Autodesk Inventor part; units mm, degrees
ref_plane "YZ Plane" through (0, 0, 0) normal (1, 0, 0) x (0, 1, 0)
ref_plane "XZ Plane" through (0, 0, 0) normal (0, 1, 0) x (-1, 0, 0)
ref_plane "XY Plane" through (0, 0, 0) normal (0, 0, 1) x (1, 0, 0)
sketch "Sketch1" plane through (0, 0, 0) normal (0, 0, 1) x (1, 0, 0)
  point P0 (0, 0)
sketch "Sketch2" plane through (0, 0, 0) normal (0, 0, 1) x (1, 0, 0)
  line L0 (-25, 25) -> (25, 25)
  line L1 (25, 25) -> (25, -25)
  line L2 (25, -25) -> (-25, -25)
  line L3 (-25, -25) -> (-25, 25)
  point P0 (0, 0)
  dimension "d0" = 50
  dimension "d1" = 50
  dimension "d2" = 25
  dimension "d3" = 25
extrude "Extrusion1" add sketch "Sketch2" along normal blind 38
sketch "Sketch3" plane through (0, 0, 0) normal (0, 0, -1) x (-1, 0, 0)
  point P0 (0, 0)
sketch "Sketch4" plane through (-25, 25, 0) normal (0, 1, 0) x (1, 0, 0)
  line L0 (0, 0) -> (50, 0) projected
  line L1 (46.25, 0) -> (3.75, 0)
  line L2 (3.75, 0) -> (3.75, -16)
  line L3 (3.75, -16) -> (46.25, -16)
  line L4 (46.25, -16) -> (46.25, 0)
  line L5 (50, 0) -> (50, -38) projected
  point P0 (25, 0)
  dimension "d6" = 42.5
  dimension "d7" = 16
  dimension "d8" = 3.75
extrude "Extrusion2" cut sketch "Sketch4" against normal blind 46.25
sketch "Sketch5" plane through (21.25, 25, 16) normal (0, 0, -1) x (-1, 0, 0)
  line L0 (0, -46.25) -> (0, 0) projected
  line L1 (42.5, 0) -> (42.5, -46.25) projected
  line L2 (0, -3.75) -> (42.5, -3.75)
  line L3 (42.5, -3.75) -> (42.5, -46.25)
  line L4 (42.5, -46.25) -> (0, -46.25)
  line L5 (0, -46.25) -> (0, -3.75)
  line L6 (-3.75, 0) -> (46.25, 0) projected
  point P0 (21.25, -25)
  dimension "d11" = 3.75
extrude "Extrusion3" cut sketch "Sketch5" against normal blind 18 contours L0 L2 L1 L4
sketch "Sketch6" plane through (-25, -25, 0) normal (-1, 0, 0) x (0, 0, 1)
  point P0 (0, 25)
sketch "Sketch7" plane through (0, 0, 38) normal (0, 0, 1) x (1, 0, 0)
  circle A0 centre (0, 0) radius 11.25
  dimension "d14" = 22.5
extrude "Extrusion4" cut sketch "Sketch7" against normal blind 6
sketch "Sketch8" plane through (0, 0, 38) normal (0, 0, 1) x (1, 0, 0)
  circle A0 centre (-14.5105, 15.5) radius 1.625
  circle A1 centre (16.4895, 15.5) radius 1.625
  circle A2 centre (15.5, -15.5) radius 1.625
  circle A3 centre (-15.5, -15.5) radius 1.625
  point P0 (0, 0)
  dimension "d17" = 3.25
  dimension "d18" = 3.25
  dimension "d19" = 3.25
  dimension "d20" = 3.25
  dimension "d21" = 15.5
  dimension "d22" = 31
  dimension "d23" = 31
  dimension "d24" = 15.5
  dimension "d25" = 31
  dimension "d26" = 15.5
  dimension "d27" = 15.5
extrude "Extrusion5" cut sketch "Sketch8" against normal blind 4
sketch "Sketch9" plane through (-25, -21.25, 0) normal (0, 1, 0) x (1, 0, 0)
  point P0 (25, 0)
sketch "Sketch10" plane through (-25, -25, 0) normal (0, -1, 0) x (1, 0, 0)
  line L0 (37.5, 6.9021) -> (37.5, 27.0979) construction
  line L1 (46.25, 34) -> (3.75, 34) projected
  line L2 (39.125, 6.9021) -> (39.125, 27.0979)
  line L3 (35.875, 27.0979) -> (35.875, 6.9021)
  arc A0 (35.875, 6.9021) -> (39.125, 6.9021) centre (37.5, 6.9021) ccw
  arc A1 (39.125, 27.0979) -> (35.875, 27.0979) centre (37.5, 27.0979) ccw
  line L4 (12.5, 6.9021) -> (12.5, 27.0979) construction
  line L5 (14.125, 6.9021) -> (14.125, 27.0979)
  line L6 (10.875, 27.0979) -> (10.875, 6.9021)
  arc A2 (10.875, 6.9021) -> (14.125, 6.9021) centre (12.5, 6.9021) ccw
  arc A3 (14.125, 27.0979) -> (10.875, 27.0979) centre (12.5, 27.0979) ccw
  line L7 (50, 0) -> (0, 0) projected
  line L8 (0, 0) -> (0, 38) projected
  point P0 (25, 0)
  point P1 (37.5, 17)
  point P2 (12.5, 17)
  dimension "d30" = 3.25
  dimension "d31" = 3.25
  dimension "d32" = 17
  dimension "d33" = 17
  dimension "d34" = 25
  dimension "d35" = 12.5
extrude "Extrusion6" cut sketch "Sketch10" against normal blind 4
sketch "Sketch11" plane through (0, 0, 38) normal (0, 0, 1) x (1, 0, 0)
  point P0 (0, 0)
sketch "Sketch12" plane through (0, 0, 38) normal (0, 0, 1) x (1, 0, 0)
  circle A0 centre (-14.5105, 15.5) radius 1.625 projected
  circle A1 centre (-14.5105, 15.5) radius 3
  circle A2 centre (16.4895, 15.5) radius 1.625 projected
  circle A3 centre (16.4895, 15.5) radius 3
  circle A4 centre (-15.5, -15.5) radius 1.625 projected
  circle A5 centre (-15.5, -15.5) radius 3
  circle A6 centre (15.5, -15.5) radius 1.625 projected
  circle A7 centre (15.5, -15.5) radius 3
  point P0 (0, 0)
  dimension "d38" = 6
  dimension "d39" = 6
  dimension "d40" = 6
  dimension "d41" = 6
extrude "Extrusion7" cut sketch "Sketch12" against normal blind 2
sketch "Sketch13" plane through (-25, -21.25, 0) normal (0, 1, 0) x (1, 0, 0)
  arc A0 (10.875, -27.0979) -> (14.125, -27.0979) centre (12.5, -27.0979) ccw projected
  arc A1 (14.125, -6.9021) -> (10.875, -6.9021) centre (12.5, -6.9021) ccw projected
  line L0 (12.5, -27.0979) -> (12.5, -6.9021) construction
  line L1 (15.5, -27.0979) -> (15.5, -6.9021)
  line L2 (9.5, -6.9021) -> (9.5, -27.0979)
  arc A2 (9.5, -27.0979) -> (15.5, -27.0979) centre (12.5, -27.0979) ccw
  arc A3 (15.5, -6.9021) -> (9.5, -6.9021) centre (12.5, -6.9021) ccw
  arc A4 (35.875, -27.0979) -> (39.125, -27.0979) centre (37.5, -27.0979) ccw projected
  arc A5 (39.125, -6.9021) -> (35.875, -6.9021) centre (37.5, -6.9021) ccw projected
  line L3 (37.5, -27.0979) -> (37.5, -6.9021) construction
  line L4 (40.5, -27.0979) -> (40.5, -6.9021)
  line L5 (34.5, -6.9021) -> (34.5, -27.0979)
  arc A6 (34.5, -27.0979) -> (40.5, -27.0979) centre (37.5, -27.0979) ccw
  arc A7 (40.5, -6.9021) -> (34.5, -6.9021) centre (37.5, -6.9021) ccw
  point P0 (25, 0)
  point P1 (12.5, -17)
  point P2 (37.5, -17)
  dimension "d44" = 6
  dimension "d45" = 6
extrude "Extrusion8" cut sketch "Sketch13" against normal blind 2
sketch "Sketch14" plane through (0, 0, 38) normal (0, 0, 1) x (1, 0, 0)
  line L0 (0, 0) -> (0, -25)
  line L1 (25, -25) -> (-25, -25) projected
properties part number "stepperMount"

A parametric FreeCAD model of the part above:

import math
import FreeCAD as App
import Part
import Sketcher

doc = App.newDocument("Part")
body = doc.addObject("PartDesign::Body", "Body")

sketch1 = body.newObject("Sketcher::SketchObject", "Sketch")
sketch1.AttachmentSupport = (doc.getObject("XY_Plane"), [""])
sketch1.MapMode = "FlatFace"
sketch1.addGeometry([
    Part.LineSegment(App.Vector(25, 25, 0), App.Vector(-25, 25, 0)),
    Part.LineSegment(App.Vector(-25, 25, 0), App.Vector(-25, -25, 0)),
    Part.LineSegment(App.Vector(-25, -25, 0), App.Vector(25, -25, 0)),
    Part.LineSegment(App.Vector(25, -25, 0), App.Vector(25, 25, 0)),
], False)
sketch1.addConstraint([
    Sketcher.Constraint("Coincident", 0, 2, 1, 1),
    Sketcher.Constraint("Coincident", 1, 2, 2, 1),
    Sketcher.Constraint("Coincident", 2, 2, 3, 1),
    Sketcher.Constraint("Coincident", 3, 2, 0, 1),
    Sketcher.Constraint("Horizontal", 0),
    Sketcher.Constraint("Vertical", 1),
    Sketcher.Constraint("Horizontal", 2),
    Sketcher.Constraint("Vertical", 3),
    Sketcher.Constraint("Symmetric", 0, 2, 2, 2, -1, 1),
    Sketcher.Constraint("Equal", 2, 1),
    Sketcher.Constraint("DistanceX", 0, 2, 0, 1, 50.0),
])
pad1 = body.newObject("PartDesign::Pad", "Pad")
pad1.Profile = sketch1
pad1.Length = 38

sketch2 = body.newObject("Sketcher::SketchObject", "Sketch001")
sketch2.AttachmentSupport = (doc.getObject("XZ_Plane"), [""])
sketch2.MapMode = "FlatFace"
sketch2.AttachmentOffset = App.Placement(App.Vector(0, 0, -25), App.Rotation())
sketch2.addGeometry([
    Part.LineSegment(App.Vector(21, 0, 0), App.Vector(-21, 0, 0)),
    Part.LineSegment(App.Vector(-21, 0, 0), App.Vector(-21, 16, 0)),
    Part.LineSegment(App.Vector(-21, 16, 0), App.Vector(21, 16, 0)),
    Part.LineSegment(App.Vector(21, 16, 0), App.Vector(21, 0, 0)),
], False)
sketch2.addConstraint([
    Sketcher.Constraint("Coincident", 0, 2, 1, 1),
    Sketcher.Constraint("Coincident", 1, 2, 2, 1),
    Sketcher.Constraint("Coincident", 2, 2, 3, 1),
    Sketcher.Constraint("Coincident", 3, 2, 0, 1),
    Sketcher.Constraint("Horizontal", 0),
    Sketcher.Constraint("Vertical", 1),
    Sketcher.Constraint("Horizontal", 2),
    Sketcher.Constraint("Vertical", 3),
    Sketcher.Constraint("Symmetric", 0, 2, 3, 2, -1, 1),
    Sketcher.Constraint("DistanceY", 1, 1, 1, 2, 16.0),
    Sketcher.Constraint("DistanceX", 0, 2, 0, 1, 42.5),
])
pocket1 = body.newObject("PartDesign::Pocket", "Pocket")
pocket1.Profile = sketch2
pocket1.Length = 46.25
pocket1.Reversed = True

sketch3 = body.newObject("Sketcher::SketchObject", "Sketch002")
sketch3.AttachmentSupport = (doc.getObject("XY_Plane"), [""])
sketch3.MapMode = "FlatFace"
sketch3.AttachmentOffset = App.Placement(App.Vector(0, 0, 16), App.Rotation())
sketch3.addGeometry([
    Part.LineSegment(App.Vector(21, 21, 0), App.Vector(21, -21, 0)),
    Part.LineSegment(App.Vector(21, -21, 0), App.Vector(-21, -21, 0)),
    Part.LineSegment(App.Vector(-21, -21, 0), App.Vector(-21, 21, 0)),
    Part.LineSegment(App.Vector(-21, 21, 0), App.Vector(21, 21, 0)),
], False)
sketch3.addConstraint([
    Sketcher.Constraint("Coincident", 0, 2, 1, 1),
    Sketcher.Constraint("Coincident", 1, 2, 2, 1),
    Sketcher.Constraint("Coincident", 2, 2, 3, 1),
    Sketcher.Constraint("Coincident", 3, 2, 0, 1),
    Sketcher.Constraint("Vertical", 0),
    Sketcher.Constraint("Horizontal", 1),
    Sketcher.Constraint("Vertical", 2),
    Sketcher.Constraint("Horizontal", 3),
    Sketcher.Constraint("Symmetric", 0, 2, 2, 2, -1, 1),
    Sketcher.Constraint("Equal", 3, 0),
    Sketcher.Constraint("DistanceX", 1, 2, 1, 1, 42.5),
])
pocket2 = body.newObject("PartDesign::Pocket", "Pocket001")
pocket2.Profile = sketch3
pocket2.Length = 18
pocket2.Reversed = True

sketch4 = body.newObject("Sketcher::SketchObject", "Sketch003")
sketch4.AttachmentSupport = (doc.getObject("XY_Plane"), [""])
sketch4.MapMode = "FlatFace"
sketch4.AttachmentOffset = App.Placement(App.Vector(0, 0, 38), App.Rotation())
sketch4.addGeometry(Part.Circle(App.Vector(0, 0, 0), App.Vector(0, 0, 1), 11), False)
sketch4.addConstraint([
    Sketcher.Constraint("Coincident", 0, 3, -1, 1),
    Sketcher.Constraint("Diameter", 0, 22.5),
])
pocket3 = body.newObject("PartDesign::Pocket", "Pocket002")
pocket3.Profile = sketch4
pocket3.Length = 6

sketch5 = body.newObject("Sketcher::SketchObject", "Sketch004")
sketch5.AttachmentSupport = (doc.getObject("XY_Plane"), [""])
sketch5.MapMode = "FlatFace"
sketch5.AttachmentOffset = App.Placement(App.Vector(0, 0, 38), App.Rotation())
sketch5.addGeometry([
    Part.Circle(App.Vector(-14.5, 15.5, 0), App.Vector(0, 0, 1), 1.6),
    Part.Circle(App.Vector(16.5, 15.5, 0), App.Vector(0, 0, 1), 1.6),
    Part.Circle(App.Vector(15.5, -15.5, 0), App.Vector(0, 0, 1), 1.6),
    Part.Circle(App.Vector(-15.5, -15.5, 0), App.Vector(0, 0, 1), 1.6),
], False)
sketch5.addConstraint([
    Sketcher.Constraint("Equal", 0, 1),
    Sketcher.Constraint("Equal", 1, 2),
    Sketcher.Constraint("Equal", 2, 3),
    Sketcher.Constraint("Symmetric", 2, 3, 3, 3, -2),
    Sketcher.Constraint("Horizontal", 0, 3, 1, 3),
    Sketcher.Constraint("Diameter", 0, 3.25),
    Sketcher.Constraint("DistanceX", 0, 3, 1, 3, 31.0),
    Sketcher.Constraint("DistanceY", 2, 3, 1, 3, 31.0),
    Sketcher.Constraint("DistanceX", 3, 3, 2, 3, 31.0),
    Sketcher.Constraint("DistanceY", -1, 1, 0, 3, 15.5),
    Sketcher.Constraint("DistanceX", 0, 3, -1, 1, 14.5105),
])
pocket4 = body.newObject("PartDesign::Pocket", "Pocket003")
pocket4.Profile = sketch5
pocket4.Length = 4

sketch6 = body.newObject("Sketcher::SketchObject", "Sketch005")
sketch6.AttachmentSupport = (doc.getObject("XZ_Plane"), [""])
sketch6.MapMode = "FlatFace"
sketch6.AttachmentOffset = App.Placement(App.Vector(0, 0, 25), App.Rotation())
sketch6.addGeometry([
    Part.ArcOfCircle(Part.Circle(App.Vector(12.5, 6.9, 0), App.Vector(0, 0, 1), 1.6), math.radians(180), math.radians(360)),
    Part.LineSegment(App.Vector(14.1, 6.9, 0), App.Vector(14.1, 27.1, 0)),
    Part.ArcOfCircle(Part.Circle(App.Vector(12.5, 27.1, 0), App.Vector(0, 0, 1), 1.6), math.radians(0), math.radians(180)),
    Part.LineSegment(App.Vector(10.9, 27.1, 0), App.Vector(10.9, 6.9, 0)),
    Part.ArcOfCircle(Part.Circle(App.Vector(-12.5, 6.9, 0), App.Vector(0, 0, 1), 1.6), math.radians(180), math.radians(360)),
    Part.LineSegment(App.Vector(-10.9, 6.9, 0), App.Vector(-10.9, 27.1, 0)),
    Part.ArcOfCircle(Part.Circle(App.Vector(-12.5, 27.1, 0), App.Vector(0, 0, 1), 1.6), math.radians(0), math.radians(180)),
    Part.LineSegment(App.Vector(-14.1, 27.1, 0), App.Vector(-14.1, 6.9, 0)),
], False)
sketch6.addConstraint([
    Sketcher.Constraint("Tangent", 0, 2, 1, 1),
    Sketcher.Constraint("Tangent", 1, 2, 2, 1),
    Sketcher.Constraint("Tangent", 2, 2, 3, 1),
    Sketcher.Constraint("Tangent", 3, 2, 0, 1),
    Sketcher.Constraint("Tangent", 4, 2, 5, 1),
    Sketcher.Constraint("Tangent", 5, 2, 6, 1),
    Sketcher.Constraint("Tangent", 6, 2, 7, 1),
    Sketcher.Constraint("Tangent", 7, 2, 4, 1),
    Sketcher.Constraint("Vertical", 1),
    Sketcher.Constraint("Vertical", 3),
    Sketcher.Constraint("Vertical", 5),
    Sketcher.Constraint("Vertical", 7),
    Sketcher.Constraint("Equal", 2, 4),
    Sketcher.Constraint("Symmetric", 0, 3, 4, 3, -2),
    Sketcher.Constraint("Horizontal", 2, 3, 6, 3),
    Sketcher.Constraint("Radius", 0, 1.625),
    Sketcher.Constraint("DistanceX", 4, 3, 0, 3, 25.0),
    Sketcher.Constraint("DistanceY", 1, 1, 1, 2, 20.1958),
    Sketcher.Constraint("DistanceY", -1, 1, 0, 3, 6.902),
])
pocket5 = body.newObject("PartDesign::Pocket", "Pocket004")
pocket5.Profile = sketch6
pocket5.Length = 4

sketch7 = body.newObject("Sketcher::SketchObject", "Sketch006")
sketch7.AttachmentSupport = (doc.getObject("XY_Plane"), [""])
sketch7.MapMode = "FlatFace"
sketch7.AttachmentOffset = App.Placement(App.Vector(0, 0, 38), App.Rotation())
sketch7.addGeometry([
    Part.Circle(App.Vector(-14.5, 15.5, 0), App.Vector(0, 0, 1), 3),
    Part.Circle(App.Vector(-14.5, 15.5, 0), App.Vector(0, 0, 1), 1.6),
    Part.Circle(App.Vector(16.5, 15.5, 0), App.Vector(0, 0, 1), 3),
    Part.Circle(App.Vector(16.5, 15.5, 0), App.Vector(0, 0, 1), 1.6),
    Part.Circle(App.Vector(-15.5, -15.5, 0), App.Vector(0, 0, 1), 3),
    Part.Circle(App.Vector(-15.5, -15.5, 0), App.Vector(0, 0, 1), 1.6),
    Part.Circle(App.Vector(15.5, -15.5, 0), App.Vector(0, 0, 1), 3),
    Part.Circle(App.Vector(15.5, -15.5, 0), App.Vector(0, 0, 1), 1.6),
], False)
sketch7.addConstraint([
    Sketcher.Constraint("Coincident", 1, 3, 0, 3),
    Sketcher.Constraint("Coincident", 3, 3, 2, 3),
    Sketcher.Constraint("Coincident", 5, 3, 4, 3),
    Sketcher.Constraint("Coincident", 7, 3, 6, 3),
    Sketcher.Constraint("Equal", 0, 2),
    Sketcher.Constraint("Equal", 1, 3),
    Sketcher.Constraint("Equal", 2, 4),
    Sketcher.Constraint("Equal", 3, 5),
    Sketcher.Constraint("Equal", 4, 6),
    Sketcher.Constraint("Equal", 5, 7),
    Sketcher.Constraint("Symmetric", 4, 3, 6, 3, -2),
    Sketcher.Constraint("Horizontal", 1, 3, 2, 3),
    Sketcher.Constraint("Diameter", 0, 6.0),
    Sketcher.Constraint("Diameter", 1, 3.25),
    Sketcher.Constraint("DistanceX", 0, 3, 2, 3, 31.0),
    Sketcher.Constraint("DistanceY", 4, 3, 0, 3, 31.0),
    Sketcher.Constraint("DistanceX", 4, 3, 6, 3, 31.0),
    Sketcher.Constraint("DistanceY", -1, 1, 0, 3, 15.5),
    Sketcher.Constraint("DistanceX", 0, 3, -1, 1, 14.5105),
])
pocket6 = body.newObject("PartDesign::Pocket", "Pocket005")
pocket6.Profile = sketch7
pocket6.Length = 2

sketch8 = body.newObject("Sketcher::SketchObject", "Sketch007")
sketch8.AttachmentSupport = (doc.getObject("XZ_Plane"), [""])
sketch8.MapMode = "FlatFace"
sketch8.AttachmentOffset = App.Placement(App.Vector(0, 0, 21.25), App.Rotation())
sketch8.addGeometry([
    Part.ArcOfCircle(Part.Circle(App.Vector(-12.5, 27.1, 0), App.Vector(0, 0, 1), 3), math.radians(0), math.radians(180)),
    Part.LineSegment(App.Vector(-9.5, 27.1, 0), App.Vector(-9.5, 6.9, 0)),
    Part.ArcOfCircle(Part.Circle(App.Vector(-12.5, 6.9, 0), App.Vector(0, 0, 1), 3), math.radians(180), math.radians(360)),
    Part.LineSegment(App.Vector(-15.5, 6.9, 0), App.Vector(-15.5, 27.1, 0)),
    Part.ArcOfCircle(Part.Circle(App.Vector(12.5, 27.1, 0), App.Vector(0, 0, 1), 3), math.radians(0), math.radians(180)),
    Part.LineSegment(App.Vector(15.5, 27.1, 0), App.Vector(15.5, 6.9, 0)),
    Part.ArcOfCircle(Part.Circle(App.Vector(12.5, 6.9, 0), App.Vector(0, 0, 1), 3), math.radians(180), math.radians(360)),
    Part.LineSegment(App.Vector(9.5, 6.9, 0), App.Vector(9.5, 27.1, 0)),
], False)
sketch8.addConstraint([
    Sketcher.Constraint("Tangent", 0, 1, 1, 1),
    Sketcher.Constraint("Tangent", 1, 2, 2, 2),
    Sketcher.Constraint("Tangent", 2, 1, 3, 1),
    Sketcher.Constraint("Tangent", 3, 2, 0, 2),
    Sketcher.Constraint("Tangent", 4, 1, 5, 1),
    Sketcher.Constraint("Tangent", 5, 2, 6, 2),
    Sketcher.Constraint("Tangent", 6, 1, 7, 1),
    Sketcher.Constraint("Tangent", 7, 2, 4, 2),
    Sketcher.Constraint("Vertical", 1),
    Sketcher.Constraint("Vertical", 3),
    Sketcher.Constraint("Vertical", 5),
    Sketcher.Constraint("Vertical", 7),
    Sketcher.Constraint("Equal", 2, 4),
    Sketcher.Constraint("Symmetric", 0, 3, 4, 3, -2),
    Sketcher.Constraint("Horizontal", 2, 3, 6, 3),
    Sketcher.Constraint("Radius", 0, 3.0),
    Sketcher.Constraint("DistanceX", 0, 3, 4, 3, 25.0),
    Sketcher.Constraint("DistanceY", 1, 2, 1, 1, 20.1958),
    Sketcher.Constraint("DistanceY", -1, 1, 0, 3, 27.098),
])
pocket7 = body.newObject("PartDesign::Pocket", "Pocket006")
pocket7.Profile = sketch8
pocket7.Length = 2
pocket7.Reversed = True

doc.recompute()
